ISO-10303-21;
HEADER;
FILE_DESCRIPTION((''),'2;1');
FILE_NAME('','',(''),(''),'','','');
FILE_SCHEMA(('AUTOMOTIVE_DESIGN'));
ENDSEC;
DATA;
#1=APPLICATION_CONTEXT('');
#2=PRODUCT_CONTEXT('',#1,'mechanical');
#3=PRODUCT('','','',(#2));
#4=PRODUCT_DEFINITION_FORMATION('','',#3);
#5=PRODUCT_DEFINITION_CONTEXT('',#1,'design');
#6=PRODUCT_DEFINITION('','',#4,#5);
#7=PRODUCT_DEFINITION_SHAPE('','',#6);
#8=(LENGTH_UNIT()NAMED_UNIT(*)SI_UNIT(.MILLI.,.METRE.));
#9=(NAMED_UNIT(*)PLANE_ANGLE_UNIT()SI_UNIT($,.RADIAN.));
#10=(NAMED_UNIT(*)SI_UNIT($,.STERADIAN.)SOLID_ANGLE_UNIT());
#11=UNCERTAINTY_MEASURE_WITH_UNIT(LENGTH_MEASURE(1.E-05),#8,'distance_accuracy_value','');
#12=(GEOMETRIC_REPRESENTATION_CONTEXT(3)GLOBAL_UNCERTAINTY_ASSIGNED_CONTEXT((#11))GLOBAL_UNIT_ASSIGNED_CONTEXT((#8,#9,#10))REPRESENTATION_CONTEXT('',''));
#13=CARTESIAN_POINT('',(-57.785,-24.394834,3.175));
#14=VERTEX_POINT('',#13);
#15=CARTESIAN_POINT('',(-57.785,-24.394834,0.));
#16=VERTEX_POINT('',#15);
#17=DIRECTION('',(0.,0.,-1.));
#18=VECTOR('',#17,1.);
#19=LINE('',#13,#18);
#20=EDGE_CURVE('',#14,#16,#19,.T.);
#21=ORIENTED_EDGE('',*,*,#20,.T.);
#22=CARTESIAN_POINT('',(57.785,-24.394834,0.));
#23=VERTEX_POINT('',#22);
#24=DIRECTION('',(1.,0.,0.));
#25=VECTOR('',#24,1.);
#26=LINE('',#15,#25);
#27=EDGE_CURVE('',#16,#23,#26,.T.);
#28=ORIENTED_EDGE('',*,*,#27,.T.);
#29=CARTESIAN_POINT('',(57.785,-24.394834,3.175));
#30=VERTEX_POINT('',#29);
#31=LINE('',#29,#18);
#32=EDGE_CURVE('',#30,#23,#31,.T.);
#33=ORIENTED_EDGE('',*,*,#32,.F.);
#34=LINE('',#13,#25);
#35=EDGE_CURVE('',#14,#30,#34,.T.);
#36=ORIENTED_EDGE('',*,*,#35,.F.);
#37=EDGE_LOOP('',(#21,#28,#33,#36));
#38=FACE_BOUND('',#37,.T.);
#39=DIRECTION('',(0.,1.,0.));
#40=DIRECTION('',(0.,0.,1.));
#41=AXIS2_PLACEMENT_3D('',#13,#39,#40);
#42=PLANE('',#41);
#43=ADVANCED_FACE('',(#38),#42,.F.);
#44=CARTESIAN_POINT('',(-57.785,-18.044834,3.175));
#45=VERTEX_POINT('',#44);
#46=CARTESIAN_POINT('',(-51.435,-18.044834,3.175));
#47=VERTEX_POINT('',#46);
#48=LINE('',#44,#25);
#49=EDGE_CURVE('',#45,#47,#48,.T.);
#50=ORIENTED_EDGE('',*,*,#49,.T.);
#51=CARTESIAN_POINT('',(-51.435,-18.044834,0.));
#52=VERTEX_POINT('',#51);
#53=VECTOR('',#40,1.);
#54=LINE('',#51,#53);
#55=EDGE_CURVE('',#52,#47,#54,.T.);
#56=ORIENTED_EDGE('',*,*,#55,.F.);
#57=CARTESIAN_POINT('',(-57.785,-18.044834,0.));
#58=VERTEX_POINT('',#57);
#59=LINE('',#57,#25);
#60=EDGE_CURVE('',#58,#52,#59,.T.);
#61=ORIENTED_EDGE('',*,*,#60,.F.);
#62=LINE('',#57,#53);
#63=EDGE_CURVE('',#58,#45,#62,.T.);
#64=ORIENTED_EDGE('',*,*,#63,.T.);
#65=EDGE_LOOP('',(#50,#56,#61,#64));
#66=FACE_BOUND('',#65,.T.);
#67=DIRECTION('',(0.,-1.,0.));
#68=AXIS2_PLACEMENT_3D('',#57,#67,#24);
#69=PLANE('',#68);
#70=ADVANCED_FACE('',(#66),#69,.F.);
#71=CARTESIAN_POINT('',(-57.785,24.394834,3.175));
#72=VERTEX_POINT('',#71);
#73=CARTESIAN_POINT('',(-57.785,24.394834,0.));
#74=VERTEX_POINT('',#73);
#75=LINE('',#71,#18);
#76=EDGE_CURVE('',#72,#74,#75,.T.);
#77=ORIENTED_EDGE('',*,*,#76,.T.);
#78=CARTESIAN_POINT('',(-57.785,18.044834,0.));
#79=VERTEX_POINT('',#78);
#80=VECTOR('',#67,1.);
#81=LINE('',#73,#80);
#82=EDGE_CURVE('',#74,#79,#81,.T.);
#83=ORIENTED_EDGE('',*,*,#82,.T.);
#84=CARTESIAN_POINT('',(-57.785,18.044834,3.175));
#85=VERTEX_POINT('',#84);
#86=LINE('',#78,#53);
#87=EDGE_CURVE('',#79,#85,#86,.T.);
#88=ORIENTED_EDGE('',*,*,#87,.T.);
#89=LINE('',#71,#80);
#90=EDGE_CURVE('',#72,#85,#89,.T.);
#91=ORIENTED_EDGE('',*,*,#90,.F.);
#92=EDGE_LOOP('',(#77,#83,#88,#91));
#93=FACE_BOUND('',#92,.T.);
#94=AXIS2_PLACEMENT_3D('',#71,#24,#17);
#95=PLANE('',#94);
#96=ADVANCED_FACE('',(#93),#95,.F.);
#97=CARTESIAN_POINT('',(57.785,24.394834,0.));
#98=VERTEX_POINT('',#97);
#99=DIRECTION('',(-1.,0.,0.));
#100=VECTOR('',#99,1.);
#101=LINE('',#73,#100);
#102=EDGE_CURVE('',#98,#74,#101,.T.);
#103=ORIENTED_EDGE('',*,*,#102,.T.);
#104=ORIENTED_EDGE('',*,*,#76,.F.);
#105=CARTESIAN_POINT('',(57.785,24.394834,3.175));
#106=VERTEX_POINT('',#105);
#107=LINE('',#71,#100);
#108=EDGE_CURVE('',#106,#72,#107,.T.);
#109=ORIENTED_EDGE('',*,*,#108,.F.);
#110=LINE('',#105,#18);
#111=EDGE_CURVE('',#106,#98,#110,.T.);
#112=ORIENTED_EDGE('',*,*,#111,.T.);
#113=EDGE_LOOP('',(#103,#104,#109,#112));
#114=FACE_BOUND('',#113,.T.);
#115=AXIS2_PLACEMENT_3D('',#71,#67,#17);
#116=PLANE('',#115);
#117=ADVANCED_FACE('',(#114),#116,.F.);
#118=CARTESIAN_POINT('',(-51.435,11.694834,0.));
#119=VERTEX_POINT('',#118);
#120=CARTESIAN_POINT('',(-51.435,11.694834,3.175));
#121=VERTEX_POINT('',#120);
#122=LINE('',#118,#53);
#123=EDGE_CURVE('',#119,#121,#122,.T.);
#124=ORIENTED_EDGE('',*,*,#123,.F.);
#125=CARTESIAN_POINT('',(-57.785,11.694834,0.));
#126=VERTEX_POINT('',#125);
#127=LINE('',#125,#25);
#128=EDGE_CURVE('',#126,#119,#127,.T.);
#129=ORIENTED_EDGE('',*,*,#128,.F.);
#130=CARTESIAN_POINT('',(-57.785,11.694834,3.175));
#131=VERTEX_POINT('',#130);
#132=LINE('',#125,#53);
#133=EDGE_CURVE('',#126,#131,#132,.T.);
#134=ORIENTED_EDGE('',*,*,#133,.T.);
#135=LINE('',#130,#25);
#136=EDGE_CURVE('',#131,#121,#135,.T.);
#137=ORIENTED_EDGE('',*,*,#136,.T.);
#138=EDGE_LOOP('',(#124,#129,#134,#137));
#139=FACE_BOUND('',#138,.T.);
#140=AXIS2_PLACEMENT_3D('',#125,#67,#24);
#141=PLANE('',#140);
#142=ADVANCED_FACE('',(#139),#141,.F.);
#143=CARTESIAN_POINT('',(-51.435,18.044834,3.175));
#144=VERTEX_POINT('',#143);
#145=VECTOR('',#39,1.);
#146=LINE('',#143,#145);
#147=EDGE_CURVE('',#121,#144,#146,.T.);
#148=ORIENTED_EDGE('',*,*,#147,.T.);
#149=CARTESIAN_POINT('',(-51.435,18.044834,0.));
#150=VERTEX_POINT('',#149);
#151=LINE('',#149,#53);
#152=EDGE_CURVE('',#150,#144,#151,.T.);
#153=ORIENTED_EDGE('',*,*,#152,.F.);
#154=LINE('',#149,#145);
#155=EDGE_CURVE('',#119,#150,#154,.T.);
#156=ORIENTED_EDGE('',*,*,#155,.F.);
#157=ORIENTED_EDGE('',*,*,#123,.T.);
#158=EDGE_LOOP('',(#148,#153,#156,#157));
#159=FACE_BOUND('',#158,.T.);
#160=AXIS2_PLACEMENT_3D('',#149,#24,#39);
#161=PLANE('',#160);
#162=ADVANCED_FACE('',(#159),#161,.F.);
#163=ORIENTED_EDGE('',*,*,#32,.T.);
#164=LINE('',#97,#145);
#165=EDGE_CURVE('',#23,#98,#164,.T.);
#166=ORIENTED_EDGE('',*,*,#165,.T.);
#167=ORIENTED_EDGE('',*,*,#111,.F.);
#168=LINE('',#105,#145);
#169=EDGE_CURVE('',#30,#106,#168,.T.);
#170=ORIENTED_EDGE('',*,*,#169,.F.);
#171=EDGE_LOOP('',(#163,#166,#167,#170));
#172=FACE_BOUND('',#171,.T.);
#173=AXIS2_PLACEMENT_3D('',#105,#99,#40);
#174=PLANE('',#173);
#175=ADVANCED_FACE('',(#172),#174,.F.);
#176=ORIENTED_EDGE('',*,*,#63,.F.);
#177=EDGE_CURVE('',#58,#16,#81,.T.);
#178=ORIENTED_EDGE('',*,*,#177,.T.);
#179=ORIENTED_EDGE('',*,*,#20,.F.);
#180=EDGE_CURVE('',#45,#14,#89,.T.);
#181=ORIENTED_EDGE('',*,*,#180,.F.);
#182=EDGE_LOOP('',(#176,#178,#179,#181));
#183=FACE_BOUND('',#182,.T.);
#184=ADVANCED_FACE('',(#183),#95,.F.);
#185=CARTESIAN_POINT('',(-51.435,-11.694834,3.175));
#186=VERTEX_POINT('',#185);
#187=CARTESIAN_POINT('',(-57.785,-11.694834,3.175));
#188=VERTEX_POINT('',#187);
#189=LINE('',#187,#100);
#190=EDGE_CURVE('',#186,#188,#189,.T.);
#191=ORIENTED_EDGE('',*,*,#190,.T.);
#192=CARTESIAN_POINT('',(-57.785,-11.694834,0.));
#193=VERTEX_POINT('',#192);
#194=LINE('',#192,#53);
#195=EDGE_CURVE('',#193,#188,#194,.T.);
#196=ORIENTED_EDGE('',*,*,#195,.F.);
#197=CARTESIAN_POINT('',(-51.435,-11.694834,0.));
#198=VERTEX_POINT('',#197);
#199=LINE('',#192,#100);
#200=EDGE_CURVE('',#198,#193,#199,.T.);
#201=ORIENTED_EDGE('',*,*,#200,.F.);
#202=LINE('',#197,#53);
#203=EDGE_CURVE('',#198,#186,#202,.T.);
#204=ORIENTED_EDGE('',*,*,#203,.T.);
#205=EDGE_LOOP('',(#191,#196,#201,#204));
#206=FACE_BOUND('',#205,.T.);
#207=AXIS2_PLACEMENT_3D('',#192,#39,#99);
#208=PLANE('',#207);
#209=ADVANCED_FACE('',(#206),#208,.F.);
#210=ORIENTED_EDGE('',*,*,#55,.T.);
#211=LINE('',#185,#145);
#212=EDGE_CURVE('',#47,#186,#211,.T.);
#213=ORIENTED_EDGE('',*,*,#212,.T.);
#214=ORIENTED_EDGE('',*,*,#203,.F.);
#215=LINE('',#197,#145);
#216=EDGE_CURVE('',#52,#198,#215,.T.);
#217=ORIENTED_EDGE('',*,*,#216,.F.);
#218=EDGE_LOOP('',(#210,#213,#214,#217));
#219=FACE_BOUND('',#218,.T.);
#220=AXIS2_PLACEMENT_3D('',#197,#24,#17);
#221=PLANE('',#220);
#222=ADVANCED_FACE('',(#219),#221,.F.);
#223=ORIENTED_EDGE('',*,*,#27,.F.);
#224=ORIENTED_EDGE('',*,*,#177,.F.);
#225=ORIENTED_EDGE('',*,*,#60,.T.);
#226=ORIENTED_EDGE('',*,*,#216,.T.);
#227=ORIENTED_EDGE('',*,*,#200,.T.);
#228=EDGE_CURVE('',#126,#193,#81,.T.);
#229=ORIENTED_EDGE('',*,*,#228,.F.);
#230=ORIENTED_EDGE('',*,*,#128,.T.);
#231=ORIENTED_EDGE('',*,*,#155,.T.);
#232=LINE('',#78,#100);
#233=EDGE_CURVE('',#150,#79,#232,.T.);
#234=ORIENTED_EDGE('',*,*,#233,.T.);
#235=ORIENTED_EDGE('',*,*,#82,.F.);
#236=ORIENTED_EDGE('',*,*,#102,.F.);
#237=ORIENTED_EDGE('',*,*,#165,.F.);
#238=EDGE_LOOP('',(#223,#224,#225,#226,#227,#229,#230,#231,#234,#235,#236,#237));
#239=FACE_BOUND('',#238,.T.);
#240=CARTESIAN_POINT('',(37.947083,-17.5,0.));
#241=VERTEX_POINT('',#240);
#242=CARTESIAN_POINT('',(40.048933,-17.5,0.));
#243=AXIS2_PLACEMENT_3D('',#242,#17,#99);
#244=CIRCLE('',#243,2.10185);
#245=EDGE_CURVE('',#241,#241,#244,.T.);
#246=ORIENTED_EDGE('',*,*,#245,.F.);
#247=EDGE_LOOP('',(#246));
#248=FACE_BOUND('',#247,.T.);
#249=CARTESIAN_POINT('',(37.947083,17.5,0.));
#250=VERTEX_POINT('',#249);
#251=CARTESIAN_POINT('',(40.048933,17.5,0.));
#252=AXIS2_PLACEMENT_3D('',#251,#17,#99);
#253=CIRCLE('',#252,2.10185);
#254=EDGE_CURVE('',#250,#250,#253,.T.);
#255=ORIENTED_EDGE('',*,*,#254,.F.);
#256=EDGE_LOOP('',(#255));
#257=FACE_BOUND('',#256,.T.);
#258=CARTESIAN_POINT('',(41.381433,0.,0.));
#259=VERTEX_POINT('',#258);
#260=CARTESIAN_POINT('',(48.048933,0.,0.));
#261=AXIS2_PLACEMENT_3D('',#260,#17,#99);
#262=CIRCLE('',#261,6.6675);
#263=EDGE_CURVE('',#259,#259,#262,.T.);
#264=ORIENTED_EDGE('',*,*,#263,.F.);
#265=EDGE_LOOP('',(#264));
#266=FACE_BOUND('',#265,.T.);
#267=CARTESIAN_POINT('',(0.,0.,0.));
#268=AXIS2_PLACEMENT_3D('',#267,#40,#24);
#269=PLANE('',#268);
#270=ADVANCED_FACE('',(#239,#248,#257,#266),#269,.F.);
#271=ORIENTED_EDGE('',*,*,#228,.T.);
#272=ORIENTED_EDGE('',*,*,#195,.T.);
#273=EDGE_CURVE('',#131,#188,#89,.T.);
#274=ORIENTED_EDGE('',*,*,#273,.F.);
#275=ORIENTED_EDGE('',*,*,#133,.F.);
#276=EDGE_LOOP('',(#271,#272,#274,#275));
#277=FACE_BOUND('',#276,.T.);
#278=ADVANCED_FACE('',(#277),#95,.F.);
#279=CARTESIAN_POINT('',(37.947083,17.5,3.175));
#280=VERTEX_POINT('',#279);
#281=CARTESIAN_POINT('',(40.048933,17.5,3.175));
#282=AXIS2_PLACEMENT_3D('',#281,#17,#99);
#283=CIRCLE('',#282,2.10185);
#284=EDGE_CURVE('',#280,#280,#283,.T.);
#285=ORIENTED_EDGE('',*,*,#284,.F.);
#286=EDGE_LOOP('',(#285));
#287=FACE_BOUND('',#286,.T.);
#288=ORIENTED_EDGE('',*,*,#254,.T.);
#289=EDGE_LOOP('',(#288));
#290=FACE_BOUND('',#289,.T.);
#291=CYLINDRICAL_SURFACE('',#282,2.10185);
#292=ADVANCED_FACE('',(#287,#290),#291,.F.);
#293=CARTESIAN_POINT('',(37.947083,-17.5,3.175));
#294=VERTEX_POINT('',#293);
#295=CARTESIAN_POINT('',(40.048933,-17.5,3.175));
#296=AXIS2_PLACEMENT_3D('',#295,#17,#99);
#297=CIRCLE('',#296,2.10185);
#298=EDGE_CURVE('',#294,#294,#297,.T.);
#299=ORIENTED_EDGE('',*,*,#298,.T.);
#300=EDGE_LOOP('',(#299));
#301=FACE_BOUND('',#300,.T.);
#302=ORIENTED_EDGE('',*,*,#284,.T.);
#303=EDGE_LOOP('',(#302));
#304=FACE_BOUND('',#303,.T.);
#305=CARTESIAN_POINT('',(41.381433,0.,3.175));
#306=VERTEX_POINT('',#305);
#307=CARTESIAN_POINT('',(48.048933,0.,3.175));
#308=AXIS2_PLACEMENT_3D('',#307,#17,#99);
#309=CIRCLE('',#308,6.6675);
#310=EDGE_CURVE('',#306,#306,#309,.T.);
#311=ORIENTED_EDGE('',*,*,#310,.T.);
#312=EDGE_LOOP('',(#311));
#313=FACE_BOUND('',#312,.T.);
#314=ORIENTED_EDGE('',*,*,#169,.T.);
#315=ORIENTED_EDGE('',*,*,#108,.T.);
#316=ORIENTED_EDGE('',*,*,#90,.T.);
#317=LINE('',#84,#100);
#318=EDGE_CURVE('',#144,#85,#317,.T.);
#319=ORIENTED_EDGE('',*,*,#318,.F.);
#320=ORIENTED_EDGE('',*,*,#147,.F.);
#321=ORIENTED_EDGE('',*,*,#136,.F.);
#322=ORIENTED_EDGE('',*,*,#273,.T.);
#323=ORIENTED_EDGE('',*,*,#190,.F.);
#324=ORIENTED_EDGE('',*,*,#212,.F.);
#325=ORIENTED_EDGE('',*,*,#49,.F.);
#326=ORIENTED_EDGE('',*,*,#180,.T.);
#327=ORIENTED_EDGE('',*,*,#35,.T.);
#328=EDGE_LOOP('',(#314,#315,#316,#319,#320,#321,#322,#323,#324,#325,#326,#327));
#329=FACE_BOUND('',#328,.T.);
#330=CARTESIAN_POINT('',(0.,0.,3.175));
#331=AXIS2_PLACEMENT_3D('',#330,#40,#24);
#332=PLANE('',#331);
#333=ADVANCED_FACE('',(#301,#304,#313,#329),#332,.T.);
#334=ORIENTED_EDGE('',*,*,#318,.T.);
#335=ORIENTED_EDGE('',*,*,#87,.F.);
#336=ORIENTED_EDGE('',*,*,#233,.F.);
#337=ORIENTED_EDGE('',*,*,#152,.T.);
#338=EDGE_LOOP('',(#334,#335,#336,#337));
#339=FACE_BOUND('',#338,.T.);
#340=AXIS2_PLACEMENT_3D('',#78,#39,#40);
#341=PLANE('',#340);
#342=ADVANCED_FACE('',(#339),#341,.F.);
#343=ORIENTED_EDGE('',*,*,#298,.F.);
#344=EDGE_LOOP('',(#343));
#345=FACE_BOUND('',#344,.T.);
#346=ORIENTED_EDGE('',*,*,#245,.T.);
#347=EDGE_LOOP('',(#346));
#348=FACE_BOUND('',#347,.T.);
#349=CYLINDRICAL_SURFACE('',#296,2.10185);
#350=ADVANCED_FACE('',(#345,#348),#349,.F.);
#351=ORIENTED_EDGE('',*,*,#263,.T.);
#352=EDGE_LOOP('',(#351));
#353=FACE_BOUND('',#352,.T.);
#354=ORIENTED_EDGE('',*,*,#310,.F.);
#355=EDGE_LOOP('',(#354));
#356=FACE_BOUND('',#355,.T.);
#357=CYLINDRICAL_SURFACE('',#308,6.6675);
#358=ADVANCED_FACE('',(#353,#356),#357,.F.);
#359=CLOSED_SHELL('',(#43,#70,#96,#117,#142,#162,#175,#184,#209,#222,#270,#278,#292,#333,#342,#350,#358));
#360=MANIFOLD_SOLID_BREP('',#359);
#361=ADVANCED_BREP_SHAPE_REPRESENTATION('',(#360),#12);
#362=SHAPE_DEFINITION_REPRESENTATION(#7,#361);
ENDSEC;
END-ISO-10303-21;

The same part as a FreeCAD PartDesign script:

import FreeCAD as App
import Part
import Sketcher
from FreeCAD import Vector
Q = App.Units.Quantity

doc = App.newDocument("Part")
body = doc.addObject("PartDesign::Body", "Body")

# Sketch on XY plane
sketch1 = body.newObject("Sketcher::SketchObject", "Sketch")
sketch1.AttachmentSupport = (doc.getObject("XY_Plane"), [""])
sketch1.MapMode = "FlatFace"
sketch1.addGeometry(Part.LineSegment(Vector(-58, 24, 0), Vector(-58, -24, 0)), False)
sketch1.addGeometry(Part.LineSegment(Vector(-58, -24, 0), Vector(58, -24, 0)), False)
sketch1.addGeometry(Part.LineSegment(Vector(58, -24, 0), Vector(58, 24, 0)), False)
sketch1.addGeometry(Part.LineSegment(Vector(58, 24, 0), Vector(-58, 24, 0)), False)
sketch1.addConstraint(Sketcher.Constraint("Coincident", 0, 2, 1, 1))
sketch1.addConstraint(Sketcher.Constraint("Coincident", 1, 2, 2, 1))
sketch1.addConstraint(Sketcher.Constraint("Coincident", 2, 2, 3, 1))
sketch1.addConstraint(Sketcher.Constraint("Coincident", 3, 2, 0, 1))
sketch1.addConstraint(Sketcher.Constraint("Vertical", 0))
sketch1.addConstraint(Sketcher.Constraint("Horizontal", 1))
sketch1.addConstraint(Sketcher.Constraint("Vertical", 2))
sketch1.addConstraint(Sketcher.Constraint("Horizontal", 3))
sketch1.addConstraint(Sketcher.Constraint("Symmetric", 0, 2, 2, 2, -1, 1))
sketch1.addConstraint(Sketcher.Constraint("DistanceX", 1, 1, 1, 2, Q("4.55 in")))
sketch1.addConstraint(Sketcher.Constraint("DistanceY", 0, 2, 0, 1, Q("48.789668 mm")))
pad1 = body.newObject("PartDesign::Pad", "Pad")
pad1.Profile = sketch1
pad1.Length = Q("0.125 in")

# Sketch on XY plane
sketch2 = body.newObject("Sketcher::SketchObject", "Sketch001")
sketch2.AttachmentSupport = (doc.getObject("XY_Plane"), [""])
sketch2.MapMode = "FlatFace"
sketch2.addGeometry(Part.Circle(Vector(40, 17.5, 0), Vector(0, 0, 1), 2.1), False)
sketch2.addGeometry(Part.Circle(Vector(40, -17.5, 0), Vector(0, 0, 1), 2.1), False)
sketch2.addGeometry(Part.Circle(Vector(48, 0, 0), Vector(0, 0, 1), 6.7), False)
sketch2.addConstraint(Sketcher.Constraint("Equal", 0, 1))
sketch2.addConstraint(Sketcher.Constraint("Symmetric", 0, 3, 1, 3, -1))
sketch2.addConstraint(Sketcher.Constraint("PointOnObject", 2, 3, -1))
sketch2.addConstraint(Sketcher.Constraint("Diameter", 2, Q("0.525 in")))
sketch2.addConstraint(Sketcher.Constraint("Diameter", 0, Q("0.1655 in")))
sketch2.addConstraint(Sketcher.Constraint("DistanceY", -1, 1, 0, 3, Q("17.5 mm")))
sketch2.addConstraint(Sketcher.Constraint("DistanceX", 0, 3, 2, 3, Q("8 mm")))
sketch2.addConstraint(Sketcher.Constraint("DistanceX", -1, 1, 0, 3, Q("40.048933 mm")))
pocket1 = body.newObject("PartDesign::Pocket", "Pocket")
pocket1.Profile = sketch2
pocket1.Type = "ThroughAll"
pocket1.Reversed = True

# Sketch on XY plane
sketch3 = body.newObject("Sketcher::SketchObject", "Sketch002")
sketch3.AttachmentSupport = (doc.getObject("XY_Plane"), [""])
sketch3.MapMode = "FlatFace"
sketch3.AttachmentOffset = App.Placement(Vector(0, 0, 0.125 * 25.4), App.Rotation())
sketch3.addGeometry(Part.LineSegment(Vector(-58, 18, 0), Vector(-58, 12, 0)), False)
sketch3.addGeometry(Part.LineSegment(Vector(-58, 12, 0), Vector(-51, 12, 0)), False)
sketch3.addGeometry(Part.LineSegment(Vector(-51, 12, 0), Vector(-51, 18, 0)), False)
sketch3.addGeometry(Part.LineSegment(Vector(-51, 18, 0), Vector(-58, 18, 0)), False)
sketch3.addGeometry(Part.LineSegment(Vector(-58, -12, 0), Vector(-58, -18, 0)), False)
sketch3.addGeometry(Part.LineSegment(Vector(-58, -18, 0), Vector(-51, -18, 0)), False)
sketch3.addGeometry(Part.LineSegment(Vector(-51, -18, 0), Vector(-51, -12, 0)), False)
sketch3.addGeometry(Part.LineSegment(Vector(-51, -12, 0), Vector(-58, -12, 0)), False)
sketch3.addConstraint(Sketcher.Constraint("Coincident", 0, 2, 1, 1))
sketch3.addConstraint(Sketcher.Constraint("Coincident", 1, 2, 2, 1))
sketch3.addConstraint(Sketcher.Constraint("Coincident", 2, 2, 3, 1))
sketch3.addConstraint(Sketcher.Constraint("Coincident", 3, 2, 0, 1))
sketch3.addConstraint(Sketcher.Constraint("Coincident", 4, 2, 5, 1))
sketch3.addConstraint(Sketcher.Constraint("Coincident", 5, 2, 6, 1))
sketch3.addConstraint(Sketcher.Constraint("Coincident", 6, 2, 7, 1))
sketch3.addConstraint(Sketcher.Constraint("Coincident", 7, 2, 4, 1))
sketch3.addConstraint(Sketcher.Constraint("Vertical", 0))
sketch3.addConstraint(Sketcher.Constraint("Horizontal", 1))
sketch3.addConstraint(Sketcher.Constraint("Vertical", 2))
sketch3.addConstraint(Sketcher.Constraint("Horizontal", 3))
sketch3.addConstraint(Sketcher.Constraint("Vertical", 4))
sketch3.addConstraint(Sketcher.Constraint("Horizontal", 5))
sketch3.addConstraint(Sketcher.Constraint("Vertical", 6))
sketch3.addConstraint(Sketcher.Constraint("Horizontal", 7))
sketch3.addConstraint(Sketcher.Constraint("Symmetric", 3, 2, 4, 2, -1))
sketch3.addConstraint(Sketcher.Constraint("Symmetric", 1, 2, 6, 2, -1))
sketch3.addConstraint(Sketcher.Constraint("Equal", 7, 0))
sketch3.addConstraint(Sketcher.Constraint("DistanceX", 1, 1, 1, 2, Q("0.25 in")))
sketch3.addConstraint(Sketcher.Constraint("DistanceX", 0, 2, -1, 1, Q("2.275 in")))
sketch3.addConstraint(Sketcher.Constraint("DistanceY", -1, 1, 0, 2, Q("11.694834 mm")))
pocket2 = body.newObject("PartDesign::Pocket", "Pocket001")
pocket2.Profile = sketch3
pocket2.Type = "ThroughAll"

doc.recompute()
